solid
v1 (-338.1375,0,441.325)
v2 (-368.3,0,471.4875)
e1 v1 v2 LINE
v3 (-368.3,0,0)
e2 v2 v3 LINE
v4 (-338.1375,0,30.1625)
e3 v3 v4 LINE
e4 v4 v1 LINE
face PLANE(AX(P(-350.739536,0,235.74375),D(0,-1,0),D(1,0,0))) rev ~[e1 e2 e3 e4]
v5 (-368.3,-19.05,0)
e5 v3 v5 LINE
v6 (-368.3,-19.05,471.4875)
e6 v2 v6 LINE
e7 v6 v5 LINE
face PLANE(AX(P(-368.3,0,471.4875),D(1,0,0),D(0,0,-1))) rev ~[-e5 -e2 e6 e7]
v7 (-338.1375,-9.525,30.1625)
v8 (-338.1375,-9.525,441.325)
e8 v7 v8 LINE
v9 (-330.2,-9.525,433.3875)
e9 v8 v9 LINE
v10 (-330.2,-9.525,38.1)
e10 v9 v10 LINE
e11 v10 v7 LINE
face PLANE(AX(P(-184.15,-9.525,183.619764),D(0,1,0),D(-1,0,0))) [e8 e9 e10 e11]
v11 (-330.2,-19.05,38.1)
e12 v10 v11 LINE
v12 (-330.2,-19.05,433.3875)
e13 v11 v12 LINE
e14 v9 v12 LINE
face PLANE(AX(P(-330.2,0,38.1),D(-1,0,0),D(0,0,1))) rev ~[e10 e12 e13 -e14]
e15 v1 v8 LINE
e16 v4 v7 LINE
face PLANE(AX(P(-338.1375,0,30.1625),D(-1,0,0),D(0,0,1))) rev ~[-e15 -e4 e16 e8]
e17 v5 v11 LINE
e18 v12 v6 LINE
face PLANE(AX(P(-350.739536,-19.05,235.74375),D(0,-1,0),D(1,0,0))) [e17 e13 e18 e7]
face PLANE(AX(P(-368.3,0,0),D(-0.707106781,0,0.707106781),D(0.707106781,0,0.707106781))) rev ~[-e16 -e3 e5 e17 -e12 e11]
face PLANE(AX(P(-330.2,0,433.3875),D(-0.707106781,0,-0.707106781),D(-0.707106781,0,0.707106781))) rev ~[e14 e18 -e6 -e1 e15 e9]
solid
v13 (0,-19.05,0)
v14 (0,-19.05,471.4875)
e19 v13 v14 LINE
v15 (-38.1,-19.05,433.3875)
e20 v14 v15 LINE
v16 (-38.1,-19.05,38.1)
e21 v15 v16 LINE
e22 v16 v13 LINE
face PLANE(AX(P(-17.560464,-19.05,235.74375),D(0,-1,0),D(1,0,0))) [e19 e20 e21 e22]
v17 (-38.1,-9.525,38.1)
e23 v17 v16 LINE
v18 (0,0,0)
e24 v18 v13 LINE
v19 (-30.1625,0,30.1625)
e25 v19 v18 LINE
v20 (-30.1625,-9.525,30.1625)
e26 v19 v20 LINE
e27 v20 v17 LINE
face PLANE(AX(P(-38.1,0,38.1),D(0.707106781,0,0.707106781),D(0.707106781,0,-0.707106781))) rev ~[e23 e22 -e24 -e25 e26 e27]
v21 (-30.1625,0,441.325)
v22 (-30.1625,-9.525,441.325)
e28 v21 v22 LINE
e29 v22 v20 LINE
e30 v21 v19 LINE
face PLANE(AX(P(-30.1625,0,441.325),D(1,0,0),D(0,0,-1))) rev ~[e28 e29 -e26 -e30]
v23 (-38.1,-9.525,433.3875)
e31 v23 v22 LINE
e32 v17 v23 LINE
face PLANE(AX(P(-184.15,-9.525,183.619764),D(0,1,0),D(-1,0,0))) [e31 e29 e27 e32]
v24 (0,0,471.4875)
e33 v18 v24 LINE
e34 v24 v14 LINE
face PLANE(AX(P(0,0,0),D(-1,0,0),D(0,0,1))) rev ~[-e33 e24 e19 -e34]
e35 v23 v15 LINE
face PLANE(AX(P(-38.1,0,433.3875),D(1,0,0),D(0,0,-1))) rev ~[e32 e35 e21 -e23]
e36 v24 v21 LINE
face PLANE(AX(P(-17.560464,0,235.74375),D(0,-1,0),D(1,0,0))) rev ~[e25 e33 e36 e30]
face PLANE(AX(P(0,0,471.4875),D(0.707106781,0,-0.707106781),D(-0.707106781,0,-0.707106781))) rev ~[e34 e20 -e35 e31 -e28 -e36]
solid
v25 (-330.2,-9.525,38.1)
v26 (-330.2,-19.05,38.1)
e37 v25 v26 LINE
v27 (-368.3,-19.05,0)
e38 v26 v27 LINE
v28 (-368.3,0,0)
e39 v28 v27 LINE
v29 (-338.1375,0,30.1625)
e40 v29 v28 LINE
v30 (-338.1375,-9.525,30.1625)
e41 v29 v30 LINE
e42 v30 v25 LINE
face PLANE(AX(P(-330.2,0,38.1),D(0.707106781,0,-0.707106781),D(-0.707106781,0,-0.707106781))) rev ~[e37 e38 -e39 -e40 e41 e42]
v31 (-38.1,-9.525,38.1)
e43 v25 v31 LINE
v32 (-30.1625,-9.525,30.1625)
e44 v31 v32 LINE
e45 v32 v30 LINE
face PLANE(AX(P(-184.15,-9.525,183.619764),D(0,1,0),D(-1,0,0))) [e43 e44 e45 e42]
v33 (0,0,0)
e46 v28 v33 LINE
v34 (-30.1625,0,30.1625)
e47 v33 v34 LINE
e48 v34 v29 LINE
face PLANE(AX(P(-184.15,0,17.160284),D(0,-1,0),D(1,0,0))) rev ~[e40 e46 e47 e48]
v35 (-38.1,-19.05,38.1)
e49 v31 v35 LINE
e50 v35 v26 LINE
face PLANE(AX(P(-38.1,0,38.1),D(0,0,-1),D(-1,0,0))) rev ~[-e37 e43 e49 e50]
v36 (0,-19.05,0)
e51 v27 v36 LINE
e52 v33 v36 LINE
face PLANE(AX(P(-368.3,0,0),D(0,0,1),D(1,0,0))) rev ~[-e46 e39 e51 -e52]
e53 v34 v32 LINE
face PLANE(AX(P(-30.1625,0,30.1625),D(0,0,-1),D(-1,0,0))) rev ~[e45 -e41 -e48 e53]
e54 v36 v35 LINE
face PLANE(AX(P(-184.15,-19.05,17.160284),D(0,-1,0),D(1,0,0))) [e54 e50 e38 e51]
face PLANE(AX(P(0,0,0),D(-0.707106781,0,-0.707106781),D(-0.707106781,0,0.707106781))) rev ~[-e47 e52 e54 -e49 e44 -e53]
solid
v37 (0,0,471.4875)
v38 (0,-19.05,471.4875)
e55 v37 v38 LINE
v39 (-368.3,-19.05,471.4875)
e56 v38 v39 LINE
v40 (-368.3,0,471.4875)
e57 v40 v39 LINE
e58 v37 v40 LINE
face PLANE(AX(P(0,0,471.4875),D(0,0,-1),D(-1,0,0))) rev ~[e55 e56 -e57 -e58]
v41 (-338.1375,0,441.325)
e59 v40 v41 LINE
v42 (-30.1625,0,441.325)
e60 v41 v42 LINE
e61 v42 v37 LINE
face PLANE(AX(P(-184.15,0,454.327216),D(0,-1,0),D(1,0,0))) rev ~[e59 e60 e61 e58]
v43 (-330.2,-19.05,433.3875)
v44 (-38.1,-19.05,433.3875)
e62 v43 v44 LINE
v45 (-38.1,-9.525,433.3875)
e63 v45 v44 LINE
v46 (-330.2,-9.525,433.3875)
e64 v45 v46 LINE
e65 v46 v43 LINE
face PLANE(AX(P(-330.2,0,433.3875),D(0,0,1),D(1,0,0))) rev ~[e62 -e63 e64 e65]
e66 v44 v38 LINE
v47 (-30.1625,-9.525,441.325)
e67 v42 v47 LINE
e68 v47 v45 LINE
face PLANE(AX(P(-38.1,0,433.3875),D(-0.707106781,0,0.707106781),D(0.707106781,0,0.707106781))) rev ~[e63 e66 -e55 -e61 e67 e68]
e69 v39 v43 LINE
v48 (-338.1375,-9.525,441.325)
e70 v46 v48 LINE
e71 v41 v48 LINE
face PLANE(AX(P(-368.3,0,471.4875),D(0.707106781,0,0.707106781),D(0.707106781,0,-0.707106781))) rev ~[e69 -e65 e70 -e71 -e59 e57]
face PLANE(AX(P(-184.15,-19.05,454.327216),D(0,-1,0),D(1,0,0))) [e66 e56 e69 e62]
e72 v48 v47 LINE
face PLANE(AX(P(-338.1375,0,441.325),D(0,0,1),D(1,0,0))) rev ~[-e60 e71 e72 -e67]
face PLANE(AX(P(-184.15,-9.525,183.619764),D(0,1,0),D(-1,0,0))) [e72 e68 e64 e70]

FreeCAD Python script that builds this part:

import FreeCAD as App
import Part
import Sketcher

V = App.Vector
Q = App.Units.Quantity


def add_polygon(sketch, points):
    """Adds a closed chain of lines whose ends are joined by coincident constraints."""
    first, n = sketch.GeometryCount, len(points)
    for a, b in zip(points, points[1:] + points[:1]):
        sketch.addGeometry(Part.LineSegment(App.Vector(*a, 0), App.Vector(*b, 0)), False)
    for i in range(n):
        sketch.addConstraint(Sketcher.Constraint("Coincident", first + i, 2, first + (i + 1) % n, 1))

doc = App.newDocument("Part")
body = doc.addObject("PartDesign::Body", "Body")

# Sketch on XZ plane
sketch1 = body.newObject("Sketcher::SketchObject", "Sketch")
sketch1.AttachmentSupport = (doc.getObject("XZ_Plane"), [""])
sketch1.MapMode = "FlatFace"
add_polygon(sketch1, [(-38, 38), (0, 0), (0, 471), (-38, 433)])  # lines 0-3
sketch1.addConstraint([
    Sketcher.Constraint("Vertical", 1),
    Sketcher.Constraint("Vertical", 3),
    Sketcher.Constraint("Coincident", 0, 2, -1, 1),
    Sketcher.Constraint("Perpendicular", 0, 2),
    Sketcher.Constraint("Equal", 0, 2),
    Sketcher.Constraint("DistanceX", 2, 2, -1, 1, Q("1.5 in")),
    Sketcher.Constraint("DistanceY", 1, 1, 1, 2, Q("18.5625 in")),
])
pad1 = body.newObject("PartDesign::Pad", "Pad")
pad1.Profile = sketch1
pad1.Length = Q("0.75 in")
body2 = doc.addObject("PartDesign::Body", "Body001")

# Sketch on XZ plane
sketch2 = body2.newObject("Sketcher::SketchObject", "Sketch001")
sketch2.AttachmentSupport = (doc.getObject("XZ_Plane001"), [""])
sketch2.MapMode = "FlatFace"
add_polygon(sketch2, [(-38, 433), (0, 471), (-368, 471), (-330, 433)])  # lines 0-3
sketch2.addConstraint([
    Sketcher.Constraint("Horizontal", 1),
    Sketcher.Constraint("Horizontal", 3),
    Sketcher.Constraint("PointOnObject", 0, 2, -2),
    Sketcher.Constraint("Perpendicular", 0, 2),
    Sketcher.Constraint("Equal", 0, 2),
    Sketcher.Constraint("DistanceX", 1, 2, 1, 1, Q("14.5 in")),
    Sketcher.Constraint("DistanceX", 3, 1, 3, 2, Q("11.5 in")),
    Sketcher.Constraint("DistanceY", -1, 1, 0, 2, Q("18.5625 in")),
])
pad2 = body2.newObject("PartDesign::Pad", "Pad001")
pad2.Profile = sketch2
pad2.Length = Q("0.75 in")
body3 = doc.addObject("PartDesign::Body", "Body002")

# Sketch on XZ plane
sketch3 = body3.newObject("Sketcher::SketchObject", "Sketch002")
sketch3.AttachmentSupport = (doc.getObject("XZ_Plane002"), [""])
sketch3.MapMode = "FlatFace"
add_polygon(sketch3, [(-368, 471), (-368, 0), (-330, 38), (-330, 433)])  # lines 0-3
sketch3.addConstraint([
    Sketcher.Constraint("Vertical", 0),
    Sketcher.Constraint("Vertical", 2),
    Sketcher.Constraint("PointOnObject", 0, 2, -1),
    Sketcher.Constraint("Perpendicular", 1, 3),
    Sketcher.Constraint("Equal", 1, 3),
    Sketcher.Constraint("DistanceX", 1, 2, -1, 1, Q("13 in")),
    Sketcher.Constraint("DistanceX", 0, 2, -1, 1, Q("14.5 in")),
    Sketcher.Constraint("DistanceY", 0, 2, 0, 1, Q("18.5625 in")),
])
pad3 = body3.newObject("PartDesign::Pad", "Pad002")
pad3.Profile = sketch3
pad3.Length = Q("0.75 in")
body4 = doc.addObject("PartDesign::Body", "Body003")

# Sketch on XZ plane
sketch4 = body4.newObject("Sketcher::SketchObject", "Sketch003")
sketch4.AttachmentSupport = (doc.getObject("XZ_Plane003"), [""])
sketch4.MapMode = "FlatFace"
add_polygon(sketch4, [(-368, 0), (0, 0), (-38, 38), (-330, 38)])  # lines 0-3
sketch4.addConstraint([
    Sketcher.Constraint("Horizontal", 0),
    Sketcher.Constraint("Horizontal", 2),
    Sketcher.Constraint("Coincident", 0, 2, -1, 1),
    Sketcher.Constraint("Perpendicular", 1, 3),
    Sketcher.Constraint("Equal", 1, 3),
    Sketcher.Constraint("DistanceX", 0, 1, 0, 2, Q("14.5 in")),
    Sketcher.Constraint("DistanceX", 2, 2, 2, 1, Q("11.5 in")),
])
pad4 = body4.newObject("PartDesign::Pad", "Pad003")
pad4.Profile = sketch4
pad4.Length = Q("0.75 in")
body5 = doc.addObject("PartDesign::Body", "Body004")

# Sketch on XZ plane
sketch5 = body5.newObject("Sketcher::SketchObject", "Sketch004")
sketch5.AttachmentSupport = (doc.getObject("XZ_Plane004"), [""])
sketch5.MapMode = "FlatFace"
add_polygon(sketch5, [(-30, 30), (-338, 30), (-338, 441), (-30, 441)])  # lines 0-3
add_polygon(sketch5, [(-330, 433), (-330, 38), (-38, 38), (-38, 433)])  # lines 4-7
sketch5.addConstraint([
    Sketcher.Constraint("Horizontal", 0),
    Sketcher.Constraint("Vertical", 1),
    Sketcher.Constraint("Horizontal", 2),
    Sketcher.Constraint("Vertical", 3),
    Sketcher.Constraint("Vertical", 4),
    Sketcher.Constraint("Horizontal", 5),
    Sketcher.Constraint("Vertical", 6),
    Sketcher.Constraint("Horizontal", 7),
    Sketcher.Constraint("DistanceX", 5, 1, 5, 2, Q("11.5 in")),
    Sketcher.Constraint("DistanceX", 4, 2, -1, 1, Q("13 in")),
    Sketcher.Constraint("DistanceY", -1, 1, 4, 2, Q("1.5 in")),
    Sketcher.Constraint("DistanceX", 0, 2, 0, 1, Q("12.125 in")),
    Sketcher.Constraint("DistanceY", 1, 1, 1, 2, Q("16.1875 in")),
    Sketcher.Constraint("DistanceY", 4, 2, 4, 1, Q("15.5625 in")),
    Sketcher.Constraint("DistanceX", 0, 2, -1, 1, Q("13.3125 in")),
    Sketcher.Constraint("DistanceY", -1, 1, 0, 2, Q("1.1875 in")),
])
pad5 = body5.newObject("PartDesign::Pad", "Pad004")
pad5.Profile = sketch5
pad5.Length = Q("0.375 in")
doc.recompute()

body6 = doc.addObject("PartDesign::Body", "Body005")
body6.BaseFeature = body5
boolean = body.newObject("PartDesign::Boolean", "Boolean")
boolean.Type = "Cut"
boolean.addObjects([body6])
doc.recompute()

body7 = doc.addObject("PartDesign::Body", "Body006")
body7.BaseFeature = body5
boolean2 = body2.newObject("PartDesign::Boolean", "Boolean001")
boolean2.Type = "Cut"
boolean2.addObjects([body7])
doc.recompute()

body8 = doc.addObject("PartDesign::Body", "Body007")
body8.BaseFeature = body5
boolean3 = body3.newObject("PartDesign::Boolean", "Boolean002")
boolean3.Type = "Cut"
boolean3.addObjects([body8])
doc.recompute()

boolean4 = body4.newObject("PartDesign::Boolean", "Boolean003")
boolean4.Type = "Cut"
boolean4.addObjects([body5])

doc.recompute()
